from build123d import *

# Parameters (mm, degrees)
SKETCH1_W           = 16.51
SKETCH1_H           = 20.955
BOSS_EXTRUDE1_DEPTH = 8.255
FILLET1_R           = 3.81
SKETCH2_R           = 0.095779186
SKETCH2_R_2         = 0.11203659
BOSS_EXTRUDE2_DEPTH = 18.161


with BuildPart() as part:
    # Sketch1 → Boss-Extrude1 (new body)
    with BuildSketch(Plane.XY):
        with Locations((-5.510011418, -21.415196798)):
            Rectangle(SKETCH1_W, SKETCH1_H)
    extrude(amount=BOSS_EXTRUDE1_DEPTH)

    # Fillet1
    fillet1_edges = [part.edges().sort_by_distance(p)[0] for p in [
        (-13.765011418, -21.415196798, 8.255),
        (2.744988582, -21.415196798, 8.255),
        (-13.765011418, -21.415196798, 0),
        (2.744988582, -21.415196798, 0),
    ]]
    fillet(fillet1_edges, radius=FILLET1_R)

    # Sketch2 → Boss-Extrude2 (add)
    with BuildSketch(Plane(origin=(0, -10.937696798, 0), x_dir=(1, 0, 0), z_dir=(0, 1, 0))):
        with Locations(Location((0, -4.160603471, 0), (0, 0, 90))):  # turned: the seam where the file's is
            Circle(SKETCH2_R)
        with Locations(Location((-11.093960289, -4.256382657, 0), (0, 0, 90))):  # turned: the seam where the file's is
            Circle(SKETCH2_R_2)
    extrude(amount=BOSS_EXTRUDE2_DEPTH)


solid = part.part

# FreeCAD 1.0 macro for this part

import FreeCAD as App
import Part
import Sketcher
from FreeCAD import Vector
Q = App.Units.Quantity


def edges_at(feature, points):
    """Names of the edges that pass closest to the given points."""
    edges = feature.Shape.Edges
    near = lambda p: min(range(len(edges)), key=lambda i: edges[i].distToShape(Part.Vertex(*p))[0])
    return sorted({f"Edge{near(p) + 1}" for p in points})

doc = App.newDocument("Part")
body = doc.addObject("PartDesign::Body", "Body")

# Sketch on XY plane
sketch1 = body.newObject("Sketcher::SketchObject", "Sketch")
sketch1.AttachmentSupport = (doc.getObject("XY_Plane"), [""])
sketch1.MapMode = "FlatFace"
sketch1.addGeometry(Part.LineSegment(Vector(-14, -11, 0), Vector(-14, -32, 0)), False)
sketch1.addGeometry(Part.LineSegment(Vector(-14, -32, 0), Vector(3, -32, 0)), False)
sketch1.addGeometry(Part.LineSegment(Vector(3, -32, 0), Vector(3, -11, 0)), False)
sketch1.addGeometry(Part.LineSegment(Vector(3, -11, 0), Vector(-14, -11, 0)), False)
sketch1.addConstraint(Sketcher.Constraint("Coincident", 0, 2, 1, 1))
sketch1.addConstraint(Sketcher.Constraint("Coincident", 1, 2, 2, 1))
sketch1.addConstraint(Sketcher.Constraint("Coincident", 2, 2, 3, 1))
sketch1.addConstraint(Sketcher.Constraint("Coincident", 3, 2, 0, 1))
sketch1.addConstraint(Sketcher.Constraint("Vertical", 0))
sketch1.addConstraint(Sketcher.Constraint("Horizontal", 1))
sketch1.addConstraint(Sketcher.Constraint("Vertical", 2))
sketch1.addConstraint(Sketcher.Constraint("Horizontal", 3))
sketch1.addConstraint(Sketcher.Constraint("DistanceX", 1, 1, 1, 2, Q("0.65 in")))
sketch1.addConstraint(Sketcher.Constraint("DistanceY", 0, 2, 0, 1, Q("0.825 in")))
sketch1.addConstraint(Sketcher.Constraint("DistanceX", 0, 2, -1, 1, 13.765011))
sketch1.addConstraint(Sketcher.Constraint("DistanceY", 0, 2, -1, 1, 31.892697))
pad1 = body.newObject("PartDesign::Pad", "Pad")
pad1.Profile = sketch1
pad1.Length = Q("0.325 in")
doc.recompute()

fillet = body.newObject("PartDesign::Fillet", "Fillet")
fillet.Base = (pad1, edges_at(pad1, [
    (-13.765, -21.415, 8.255),
    (2.745, -21.415, 8.255),
    (-13.765, -21.415, 0),
    (2.745, -21.415, 0),
]))
fillet.Radius = Q("0.15 in")

# Sketch on XZ plane
sketch2 = body.newObject("Sketcher::SketchObject", "Sketch001")
sketch2.AttachmentSupport = (doc.getObject("XZ_Plane"), [""])
sketch2.MapMode = "FlatFace"
sketch2.AttachmentOffset = App.Placement(Vector(0, 0, 10.937697), App.Rotation())
sketch2.addGeometry(Part.Circle(Vector(0, 4.16, 0), Vector(0, 0, 1), 0.1), False)
sketch2.addGeometry(Part.Circle(Vector(-11.09, 4.26, 0), Vector(0, 0, 1), 0.11), False)
sketch2.addConstraint(Sketcher.Constraint("PointOnObject", 0, 3, -2))
sketch2.addConstraint(Sketcher.Constraint("Diameter", 0, 0.191558))
sketch2.addConstraint(Sketcher.Constraint("Diameter", 1, 0.224073))
sketch2.addConstraint(Sketcher.Constraint("DistanceX", 1, 3, -1, 1, 11.09396))
sketch2.addConstraint(Sketcher.Constraint("DistanceY", 0, 3, 1, 3, 0.095779))
sketch2.addConstraint(Sketcher.Constraint("DistanceY", -1, 1, 0, 3, 4.160603))
pad2 = body.newObject("PartDesign::Pad", "Pad001")
pad2.Profile = sketch2
pad2.Length = Q("0.715 in")
pad2.Reversed = True

doc.recompute()
